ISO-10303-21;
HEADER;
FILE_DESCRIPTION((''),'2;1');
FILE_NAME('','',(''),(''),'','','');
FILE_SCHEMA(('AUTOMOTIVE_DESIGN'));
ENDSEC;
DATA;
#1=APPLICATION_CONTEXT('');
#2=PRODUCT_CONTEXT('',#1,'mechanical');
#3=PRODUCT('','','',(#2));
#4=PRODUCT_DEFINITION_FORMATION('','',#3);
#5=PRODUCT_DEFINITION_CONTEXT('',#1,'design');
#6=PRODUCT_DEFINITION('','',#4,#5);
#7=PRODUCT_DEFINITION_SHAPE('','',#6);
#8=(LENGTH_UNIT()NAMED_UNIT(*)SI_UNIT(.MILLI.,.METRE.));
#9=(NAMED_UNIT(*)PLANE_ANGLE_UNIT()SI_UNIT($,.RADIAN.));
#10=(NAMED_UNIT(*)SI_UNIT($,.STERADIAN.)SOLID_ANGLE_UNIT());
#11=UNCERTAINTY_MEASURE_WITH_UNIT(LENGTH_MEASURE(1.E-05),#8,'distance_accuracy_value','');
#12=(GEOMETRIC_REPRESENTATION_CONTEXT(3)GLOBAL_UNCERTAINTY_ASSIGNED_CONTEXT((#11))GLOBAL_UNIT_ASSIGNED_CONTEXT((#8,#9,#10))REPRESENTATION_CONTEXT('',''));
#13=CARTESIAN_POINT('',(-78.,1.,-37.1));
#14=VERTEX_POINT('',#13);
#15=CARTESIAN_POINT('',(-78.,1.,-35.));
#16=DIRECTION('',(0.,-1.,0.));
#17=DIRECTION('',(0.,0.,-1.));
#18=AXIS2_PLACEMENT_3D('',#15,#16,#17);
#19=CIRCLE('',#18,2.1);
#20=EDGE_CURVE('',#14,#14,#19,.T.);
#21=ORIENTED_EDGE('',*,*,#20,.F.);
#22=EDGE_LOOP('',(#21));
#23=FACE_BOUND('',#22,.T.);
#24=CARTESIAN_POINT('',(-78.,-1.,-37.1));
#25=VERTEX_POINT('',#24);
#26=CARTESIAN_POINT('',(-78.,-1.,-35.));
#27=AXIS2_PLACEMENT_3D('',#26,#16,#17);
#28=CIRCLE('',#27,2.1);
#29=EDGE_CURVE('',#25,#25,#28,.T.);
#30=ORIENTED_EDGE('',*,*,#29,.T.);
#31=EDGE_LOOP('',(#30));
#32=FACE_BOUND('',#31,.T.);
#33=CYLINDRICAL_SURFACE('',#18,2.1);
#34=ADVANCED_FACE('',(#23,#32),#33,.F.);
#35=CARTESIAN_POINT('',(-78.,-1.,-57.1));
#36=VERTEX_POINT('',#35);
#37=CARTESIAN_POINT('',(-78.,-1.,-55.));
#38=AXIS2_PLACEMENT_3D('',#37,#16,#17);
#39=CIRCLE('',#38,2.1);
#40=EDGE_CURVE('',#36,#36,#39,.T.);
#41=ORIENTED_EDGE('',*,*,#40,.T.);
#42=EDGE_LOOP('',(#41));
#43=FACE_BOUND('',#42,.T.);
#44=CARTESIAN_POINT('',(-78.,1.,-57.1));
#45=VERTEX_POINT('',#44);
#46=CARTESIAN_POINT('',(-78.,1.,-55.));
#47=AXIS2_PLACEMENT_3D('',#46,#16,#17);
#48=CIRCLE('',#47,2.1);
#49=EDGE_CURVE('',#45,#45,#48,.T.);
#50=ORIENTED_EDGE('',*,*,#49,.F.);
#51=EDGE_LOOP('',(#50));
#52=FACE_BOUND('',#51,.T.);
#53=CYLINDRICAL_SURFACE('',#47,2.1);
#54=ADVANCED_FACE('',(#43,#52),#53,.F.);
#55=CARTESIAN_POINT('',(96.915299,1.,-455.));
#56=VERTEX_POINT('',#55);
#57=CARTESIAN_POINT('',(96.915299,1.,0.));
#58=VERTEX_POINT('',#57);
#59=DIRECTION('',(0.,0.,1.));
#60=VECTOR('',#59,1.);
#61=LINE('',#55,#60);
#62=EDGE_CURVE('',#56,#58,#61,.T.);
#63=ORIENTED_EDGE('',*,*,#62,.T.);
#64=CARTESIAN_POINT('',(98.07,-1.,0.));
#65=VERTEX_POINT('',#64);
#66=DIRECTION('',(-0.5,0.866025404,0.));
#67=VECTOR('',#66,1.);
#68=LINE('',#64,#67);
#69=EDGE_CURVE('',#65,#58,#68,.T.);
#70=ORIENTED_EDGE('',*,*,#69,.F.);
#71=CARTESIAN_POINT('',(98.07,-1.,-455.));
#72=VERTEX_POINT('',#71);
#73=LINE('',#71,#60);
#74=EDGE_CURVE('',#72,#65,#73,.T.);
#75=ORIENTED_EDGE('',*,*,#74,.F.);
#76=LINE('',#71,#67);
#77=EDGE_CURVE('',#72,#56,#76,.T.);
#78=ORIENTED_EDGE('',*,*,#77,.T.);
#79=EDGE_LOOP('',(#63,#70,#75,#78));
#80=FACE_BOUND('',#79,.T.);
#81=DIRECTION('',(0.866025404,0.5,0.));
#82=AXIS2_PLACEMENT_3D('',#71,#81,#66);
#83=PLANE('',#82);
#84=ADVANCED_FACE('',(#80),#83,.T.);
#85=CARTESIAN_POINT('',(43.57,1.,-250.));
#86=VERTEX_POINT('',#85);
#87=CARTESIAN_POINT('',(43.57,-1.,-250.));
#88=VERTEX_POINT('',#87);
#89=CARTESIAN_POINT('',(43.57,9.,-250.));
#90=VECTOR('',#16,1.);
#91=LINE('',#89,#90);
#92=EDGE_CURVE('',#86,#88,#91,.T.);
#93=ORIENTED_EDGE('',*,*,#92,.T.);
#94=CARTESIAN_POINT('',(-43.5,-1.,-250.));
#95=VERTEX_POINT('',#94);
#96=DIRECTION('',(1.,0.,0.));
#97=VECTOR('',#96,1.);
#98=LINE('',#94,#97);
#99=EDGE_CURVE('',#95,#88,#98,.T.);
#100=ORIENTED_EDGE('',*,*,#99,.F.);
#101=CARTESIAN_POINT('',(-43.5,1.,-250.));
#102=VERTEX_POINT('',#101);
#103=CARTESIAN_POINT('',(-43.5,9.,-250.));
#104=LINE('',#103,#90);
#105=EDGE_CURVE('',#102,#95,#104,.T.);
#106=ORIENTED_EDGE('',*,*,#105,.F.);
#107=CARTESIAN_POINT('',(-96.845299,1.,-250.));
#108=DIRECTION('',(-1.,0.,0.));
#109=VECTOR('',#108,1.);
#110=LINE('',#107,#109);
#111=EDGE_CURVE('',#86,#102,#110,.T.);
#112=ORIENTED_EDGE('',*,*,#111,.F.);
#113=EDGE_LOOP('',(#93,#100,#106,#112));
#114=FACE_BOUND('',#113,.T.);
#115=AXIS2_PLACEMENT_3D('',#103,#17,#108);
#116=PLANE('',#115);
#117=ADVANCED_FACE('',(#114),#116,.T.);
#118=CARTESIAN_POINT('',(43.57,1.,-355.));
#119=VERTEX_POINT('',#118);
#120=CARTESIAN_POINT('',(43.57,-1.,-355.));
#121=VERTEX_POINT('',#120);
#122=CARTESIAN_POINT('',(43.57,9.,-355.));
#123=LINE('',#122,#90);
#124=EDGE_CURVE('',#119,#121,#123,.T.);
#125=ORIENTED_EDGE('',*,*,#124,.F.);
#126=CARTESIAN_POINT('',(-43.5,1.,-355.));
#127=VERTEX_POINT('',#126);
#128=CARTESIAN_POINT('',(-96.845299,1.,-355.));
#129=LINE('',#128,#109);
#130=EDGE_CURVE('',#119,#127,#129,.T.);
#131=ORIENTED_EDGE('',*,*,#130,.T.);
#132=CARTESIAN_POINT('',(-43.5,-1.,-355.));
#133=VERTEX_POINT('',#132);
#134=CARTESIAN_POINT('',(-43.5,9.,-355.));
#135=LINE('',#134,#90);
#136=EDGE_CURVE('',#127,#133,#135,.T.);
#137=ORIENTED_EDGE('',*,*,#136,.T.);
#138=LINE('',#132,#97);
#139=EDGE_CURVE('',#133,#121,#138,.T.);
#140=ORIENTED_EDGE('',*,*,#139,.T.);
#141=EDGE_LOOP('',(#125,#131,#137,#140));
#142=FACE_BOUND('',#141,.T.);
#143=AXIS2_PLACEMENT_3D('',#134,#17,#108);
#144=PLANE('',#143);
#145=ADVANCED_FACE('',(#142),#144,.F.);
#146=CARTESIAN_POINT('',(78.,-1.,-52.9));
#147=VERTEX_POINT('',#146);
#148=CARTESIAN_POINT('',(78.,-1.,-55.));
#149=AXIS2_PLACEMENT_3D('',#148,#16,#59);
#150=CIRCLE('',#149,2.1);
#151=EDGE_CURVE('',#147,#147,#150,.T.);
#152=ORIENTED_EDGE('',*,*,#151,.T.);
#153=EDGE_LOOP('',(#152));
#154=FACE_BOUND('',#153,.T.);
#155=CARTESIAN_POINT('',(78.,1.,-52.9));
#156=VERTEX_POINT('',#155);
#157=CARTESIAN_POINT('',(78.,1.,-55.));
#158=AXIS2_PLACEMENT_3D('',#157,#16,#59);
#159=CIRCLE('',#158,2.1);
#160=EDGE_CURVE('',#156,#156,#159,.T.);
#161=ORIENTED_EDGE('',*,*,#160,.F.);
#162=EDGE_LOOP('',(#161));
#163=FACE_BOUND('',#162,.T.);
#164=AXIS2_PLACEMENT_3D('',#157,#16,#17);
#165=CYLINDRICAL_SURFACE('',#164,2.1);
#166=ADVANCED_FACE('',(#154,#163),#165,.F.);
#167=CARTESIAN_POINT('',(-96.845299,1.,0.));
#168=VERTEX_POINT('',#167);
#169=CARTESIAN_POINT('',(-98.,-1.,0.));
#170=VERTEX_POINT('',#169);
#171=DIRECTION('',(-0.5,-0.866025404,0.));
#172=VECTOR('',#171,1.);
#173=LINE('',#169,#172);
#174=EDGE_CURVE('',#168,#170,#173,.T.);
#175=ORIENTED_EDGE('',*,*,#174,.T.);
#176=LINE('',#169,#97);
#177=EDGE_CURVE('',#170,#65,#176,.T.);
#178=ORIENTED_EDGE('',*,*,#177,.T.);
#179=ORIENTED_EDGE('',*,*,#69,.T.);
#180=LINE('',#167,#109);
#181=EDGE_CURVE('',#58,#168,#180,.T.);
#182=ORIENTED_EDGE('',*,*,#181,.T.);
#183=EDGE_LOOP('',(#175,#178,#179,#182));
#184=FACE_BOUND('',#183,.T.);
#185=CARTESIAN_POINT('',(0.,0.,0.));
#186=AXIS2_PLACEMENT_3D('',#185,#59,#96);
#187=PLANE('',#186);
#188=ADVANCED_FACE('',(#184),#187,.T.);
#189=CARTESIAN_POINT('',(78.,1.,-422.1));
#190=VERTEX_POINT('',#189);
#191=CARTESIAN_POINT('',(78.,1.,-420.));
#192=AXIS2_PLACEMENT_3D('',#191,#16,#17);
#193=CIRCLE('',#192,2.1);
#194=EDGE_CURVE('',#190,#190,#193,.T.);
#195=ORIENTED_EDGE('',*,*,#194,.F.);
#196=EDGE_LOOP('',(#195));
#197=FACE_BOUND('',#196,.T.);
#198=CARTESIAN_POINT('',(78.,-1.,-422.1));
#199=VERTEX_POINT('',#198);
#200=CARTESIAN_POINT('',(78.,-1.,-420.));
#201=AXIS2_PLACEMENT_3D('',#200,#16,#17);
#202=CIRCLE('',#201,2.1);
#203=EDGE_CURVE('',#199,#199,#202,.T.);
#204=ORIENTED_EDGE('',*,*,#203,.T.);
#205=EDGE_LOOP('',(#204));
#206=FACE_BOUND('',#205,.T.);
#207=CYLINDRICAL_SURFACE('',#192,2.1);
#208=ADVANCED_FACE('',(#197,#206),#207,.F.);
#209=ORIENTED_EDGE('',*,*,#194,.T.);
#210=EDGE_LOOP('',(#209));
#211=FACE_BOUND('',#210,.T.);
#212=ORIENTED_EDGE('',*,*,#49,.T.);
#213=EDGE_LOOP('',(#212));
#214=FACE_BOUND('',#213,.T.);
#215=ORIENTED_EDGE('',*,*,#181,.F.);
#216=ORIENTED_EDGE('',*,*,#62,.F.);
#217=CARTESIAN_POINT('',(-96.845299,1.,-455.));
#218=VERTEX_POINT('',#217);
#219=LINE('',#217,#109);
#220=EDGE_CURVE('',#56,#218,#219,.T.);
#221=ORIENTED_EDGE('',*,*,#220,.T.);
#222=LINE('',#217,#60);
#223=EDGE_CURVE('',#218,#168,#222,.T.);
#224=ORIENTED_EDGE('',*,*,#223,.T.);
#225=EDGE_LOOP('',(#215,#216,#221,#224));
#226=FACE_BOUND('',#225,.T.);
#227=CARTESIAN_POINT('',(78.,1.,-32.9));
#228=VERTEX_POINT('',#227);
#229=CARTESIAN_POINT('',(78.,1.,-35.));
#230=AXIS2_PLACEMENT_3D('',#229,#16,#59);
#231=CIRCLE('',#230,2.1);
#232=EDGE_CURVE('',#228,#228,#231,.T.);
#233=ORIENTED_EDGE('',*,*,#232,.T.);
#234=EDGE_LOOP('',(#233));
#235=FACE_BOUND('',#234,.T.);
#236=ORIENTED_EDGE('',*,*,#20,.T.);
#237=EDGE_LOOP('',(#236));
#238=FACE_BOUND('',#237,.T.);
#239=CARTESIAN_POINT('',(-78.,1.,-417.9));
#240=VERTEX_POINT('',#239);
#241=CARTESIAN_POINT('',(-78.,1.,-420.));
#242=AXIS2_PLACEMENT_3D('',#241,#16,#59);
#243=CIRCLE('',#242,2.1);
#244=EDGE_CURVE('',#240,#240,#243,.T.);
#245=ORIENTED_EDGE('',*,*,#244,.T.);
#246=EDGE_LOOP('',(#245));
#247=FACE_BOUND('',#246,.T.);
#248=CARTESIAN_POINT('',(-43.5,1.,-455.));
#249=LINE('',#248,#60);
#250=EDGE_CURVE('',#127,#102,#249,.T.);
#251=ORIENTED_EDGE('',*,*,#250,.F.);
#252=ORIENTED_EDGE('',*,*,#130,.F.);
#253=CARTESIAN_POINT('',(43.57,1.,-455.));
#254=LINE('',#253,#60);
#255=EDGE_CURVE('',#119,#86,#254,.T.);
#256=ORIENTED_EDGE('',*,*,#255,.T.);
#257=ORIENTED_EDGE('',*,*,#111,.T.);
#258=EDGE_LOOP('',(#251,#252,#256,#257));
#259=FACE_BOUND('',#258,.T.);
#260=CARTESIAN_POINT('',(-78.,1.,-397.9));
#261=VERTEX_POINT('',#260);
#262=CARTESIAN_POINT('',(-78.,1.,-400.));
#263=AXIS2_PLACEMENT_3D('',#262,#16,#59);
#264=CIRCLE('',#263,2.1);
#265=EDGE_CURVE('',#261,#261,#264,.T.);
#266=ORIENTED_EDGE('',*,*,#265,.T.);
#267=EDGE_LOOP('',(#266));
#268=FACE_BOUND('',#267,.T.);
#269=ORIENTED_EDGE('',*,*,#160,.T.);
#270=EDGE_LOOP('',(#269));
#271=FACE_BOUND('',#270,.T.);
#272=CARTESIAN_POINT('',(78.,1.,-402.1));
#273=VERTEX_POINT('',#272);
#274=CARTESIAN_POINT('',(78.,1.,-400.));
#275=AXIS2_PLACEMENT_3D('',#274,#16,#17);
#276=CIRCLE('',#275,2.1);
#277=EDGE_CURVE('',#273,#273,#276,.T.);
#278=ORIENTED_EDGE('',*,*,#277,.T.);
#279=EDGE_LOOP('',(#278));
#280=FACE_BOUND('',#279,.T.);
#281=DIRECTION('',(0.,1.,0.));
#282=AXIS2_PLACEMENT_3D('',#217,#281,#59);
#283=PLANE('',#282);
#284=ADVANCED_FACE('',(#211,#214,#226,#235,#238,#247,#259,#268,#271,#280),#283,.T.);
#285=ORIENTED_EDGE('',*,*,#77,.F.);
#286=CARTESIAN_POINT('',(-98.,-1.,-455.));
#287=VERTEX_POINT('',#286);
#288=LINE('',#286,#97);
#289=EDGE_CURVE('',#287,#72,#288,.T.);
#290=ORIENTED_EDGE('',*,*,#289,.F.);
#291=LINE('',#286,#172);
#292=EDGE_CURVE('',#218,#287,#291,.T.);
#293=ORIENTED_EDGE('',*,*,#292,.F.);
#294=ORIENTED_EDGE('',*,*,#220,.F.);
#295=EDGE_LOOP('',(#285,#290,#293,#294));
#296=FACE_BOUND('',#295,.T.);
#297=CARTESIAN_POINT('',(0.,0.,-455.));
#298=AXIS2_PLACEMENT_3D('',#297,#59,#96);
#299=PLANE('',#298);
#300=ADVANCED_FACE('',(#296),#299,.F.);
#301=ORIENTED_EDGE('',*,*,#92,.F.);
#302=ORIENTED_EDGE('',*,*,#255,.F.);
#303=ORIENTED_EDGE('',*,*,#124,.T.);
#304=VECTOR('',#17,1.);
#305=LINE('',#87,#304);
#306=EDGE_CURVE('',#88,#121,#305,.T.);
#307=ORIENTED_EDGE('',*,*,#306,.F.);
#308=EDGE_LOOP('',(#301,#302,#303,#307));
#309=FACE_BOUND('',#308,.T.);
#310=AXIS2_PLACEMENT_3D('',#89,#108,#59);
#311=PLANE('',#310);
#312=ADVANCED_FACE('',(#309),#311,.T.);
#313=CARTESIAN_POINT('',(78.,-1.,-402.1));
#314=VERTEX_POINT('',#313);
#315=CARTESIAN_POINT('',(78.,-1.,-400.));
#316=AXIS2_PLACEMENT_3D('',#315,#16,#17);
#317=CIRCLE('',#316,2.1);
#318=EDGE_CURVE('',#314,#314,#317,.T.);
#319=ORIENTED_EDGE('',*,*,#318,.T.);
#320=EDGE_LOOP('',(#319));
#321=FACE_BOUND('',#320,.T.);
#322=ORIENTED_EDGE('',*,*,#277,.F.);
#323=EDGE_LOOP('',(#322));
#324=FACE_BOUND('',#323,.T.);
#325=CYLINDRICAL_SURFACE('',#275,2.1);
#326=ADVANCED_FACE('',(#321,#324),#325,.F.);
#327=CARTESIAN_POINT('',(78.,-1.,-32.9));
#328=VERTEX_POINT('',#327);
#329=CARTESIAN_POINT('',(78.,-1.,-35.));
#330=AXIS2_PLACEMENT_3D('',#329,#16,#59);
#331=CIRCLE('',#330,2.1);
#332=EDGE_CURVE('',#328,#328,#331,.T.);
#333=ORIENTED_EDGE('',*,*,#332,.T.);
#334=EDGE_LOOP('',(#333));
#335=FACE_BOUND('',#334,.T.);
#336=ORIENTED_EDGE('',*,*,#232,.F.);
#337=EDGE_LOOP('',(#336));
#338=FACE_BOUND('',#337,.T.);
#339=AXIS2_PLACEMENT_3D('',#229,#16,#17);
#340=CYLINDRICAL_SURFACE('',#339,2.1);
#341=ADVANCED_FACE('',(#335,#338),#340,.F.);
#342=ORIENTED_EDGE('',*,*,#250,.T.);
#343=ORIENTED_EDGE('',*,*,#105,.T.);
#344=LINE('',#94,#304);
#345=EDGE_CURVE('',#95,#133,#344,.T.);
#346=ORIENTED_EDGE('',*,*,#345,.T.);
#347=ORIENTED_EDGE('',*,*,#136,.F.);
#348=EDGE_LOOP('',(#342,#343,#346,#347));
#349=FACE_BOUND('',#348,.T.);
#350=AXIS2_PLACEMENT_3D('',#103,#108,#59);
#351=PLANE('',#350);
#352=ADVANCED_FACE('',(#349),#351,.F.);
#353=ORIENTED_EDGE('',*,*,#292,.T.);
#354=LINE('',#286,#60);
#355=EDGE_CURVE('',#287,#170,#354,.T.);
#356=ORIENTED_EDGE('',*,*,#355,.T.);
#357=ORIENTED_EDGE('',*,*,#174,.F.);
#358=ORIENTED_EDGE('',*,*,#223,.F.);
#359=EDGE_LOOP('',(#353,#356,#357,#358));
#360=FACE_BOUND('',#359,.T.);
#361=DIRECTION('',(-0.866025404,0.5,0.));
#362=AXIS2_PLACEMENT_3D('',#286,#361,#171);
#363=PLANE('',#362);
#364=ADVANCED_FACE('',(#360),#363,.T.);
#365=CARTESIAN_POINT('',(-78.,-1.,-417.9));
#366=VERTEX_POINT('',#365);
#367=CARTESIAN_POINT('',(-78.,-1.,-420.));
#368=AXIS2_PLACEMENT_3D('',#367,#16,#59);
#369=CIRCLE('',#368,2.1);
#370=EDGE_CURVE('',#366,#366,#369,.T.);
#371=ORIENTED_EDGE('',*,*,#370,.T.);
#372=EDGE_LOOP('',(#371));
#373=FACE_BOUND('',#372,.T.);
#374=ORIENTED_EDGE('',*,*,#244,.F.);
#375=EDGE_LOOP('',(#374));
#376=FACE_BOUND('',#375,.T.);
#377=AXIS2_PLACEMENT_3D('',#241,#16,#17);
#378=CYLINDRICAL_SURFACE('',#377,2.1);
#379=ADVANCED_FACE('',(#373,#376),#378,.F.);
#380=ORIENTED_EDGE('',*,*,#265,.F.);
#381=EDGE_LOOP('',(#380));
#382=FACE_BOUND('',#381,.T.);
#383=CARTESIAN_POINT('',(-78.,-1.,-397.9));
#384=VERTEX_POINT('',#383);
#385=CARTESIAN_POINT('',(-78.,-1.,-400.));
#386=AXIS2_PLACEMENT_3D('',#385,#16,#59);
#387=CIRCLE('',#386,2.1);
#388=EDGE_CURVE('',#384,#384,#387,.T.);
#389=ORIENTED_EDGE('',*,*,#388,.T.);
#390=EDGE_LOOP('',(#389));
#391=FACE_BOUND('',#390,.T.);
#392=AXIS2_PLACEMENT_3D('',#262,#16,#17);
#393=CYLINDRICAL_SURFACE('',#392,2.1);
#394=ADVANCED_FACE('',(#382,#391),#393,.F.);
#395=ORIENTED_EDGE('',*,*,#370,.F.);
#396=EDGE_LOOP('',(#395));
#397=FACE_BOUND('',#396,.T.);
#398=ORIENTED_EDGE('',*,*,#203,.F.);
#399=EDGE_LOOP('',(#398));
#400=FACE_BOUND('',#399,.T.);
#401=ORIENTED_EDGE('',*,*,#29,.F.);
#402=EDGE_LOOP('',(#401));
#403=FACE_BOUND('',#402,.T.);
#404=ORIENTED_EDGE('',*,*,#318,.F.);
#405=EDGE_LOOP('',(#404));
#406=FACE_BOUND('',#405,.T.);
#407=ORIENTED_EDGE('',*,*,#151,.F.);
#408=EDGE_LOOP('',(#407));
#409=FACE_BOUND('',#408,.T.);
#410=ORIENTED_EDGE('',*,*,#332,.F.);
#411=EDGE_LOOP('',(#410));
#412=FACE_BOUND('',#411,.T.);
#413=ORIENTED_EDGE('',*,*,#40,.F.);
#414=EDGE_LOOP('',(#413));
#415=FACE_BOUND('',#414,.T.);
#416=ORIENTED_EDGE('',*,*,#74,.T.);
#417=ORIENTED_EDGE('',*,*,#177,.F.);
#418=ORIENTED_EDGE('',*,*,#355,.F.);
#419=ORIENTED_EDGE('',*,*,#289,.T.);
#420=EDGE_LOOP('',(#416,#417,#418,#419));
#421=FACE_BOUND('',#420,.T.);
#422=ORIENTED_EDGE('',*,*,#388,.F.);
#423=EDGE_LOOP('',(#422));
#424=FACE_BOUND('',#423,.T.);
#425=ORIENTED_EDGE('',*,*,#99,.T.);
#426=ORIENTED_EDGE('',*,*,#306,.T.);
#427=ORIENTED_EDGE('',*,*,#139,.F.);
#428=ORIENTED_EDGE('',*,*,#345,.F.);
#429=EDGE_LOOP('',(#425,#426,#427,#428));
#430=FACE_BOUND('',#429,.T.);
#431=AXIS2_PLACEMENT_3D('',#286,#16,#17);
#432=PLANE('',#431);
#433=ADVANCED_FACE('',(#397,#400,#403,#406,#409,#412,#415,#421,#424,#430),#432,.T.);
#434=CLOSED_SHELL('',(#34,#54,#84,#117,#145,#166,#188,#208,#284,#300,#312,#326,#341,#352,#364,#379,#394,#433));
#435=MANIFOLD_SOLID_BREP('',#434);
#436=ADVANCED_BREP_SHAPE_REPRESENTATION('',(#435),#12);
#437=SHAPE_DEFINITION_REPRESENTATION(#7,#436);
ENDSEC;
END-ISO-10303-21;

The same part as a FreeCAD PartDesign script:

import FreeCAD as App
import Part
import Sketcher
from FreeCAD import Vector
Q = App.Units.Quantity

doc = App.newDocument("Part")
body = doc.addObject("PartDesign::Body", "Body")

# Sketch on XY plane
sketch1 = doc.addObject("Sketcher::SketchObject", "Sketch")
body.addObject(sketch1)
sketch1.AttachmentSupport = (doc.XY_Plane, [""])
sketch1.MapMode = "FlatFace"
sketch1.addGeometry(Part.LineSegment(Vector(-96.845299, 1, 0), Vector(-98, -1, 0)), False)
sketch1.addGeometry(Part.LineSegment(Vector(-98, -1, 0), Vector(98.07, -1, 0)), False)
sketch1.addGeometry(Part.LineSegment(Vector(98.07, -1, 0), Vector(96.915299, 1, 0)), False)
sketch1.addGeometry(Part.LineSegment(Vector(96.915299, 1, 0), Vector(-96.845299, 1, 0)), False)
sketch1.addConstraint(Sketcher.Constraint("Coincident", 0, 2, 1, 1))
sketch1.addConstraint(Sketcher.Constraint("Coincident", 1, 2, 2, 1))
sketch1.addConstraint(Sketcher.Constraint("Coincident", 2, 2, 3, 1))
sketch1.addConstraint(Sketcher.Constraint("Coincident", 3, 2, 0, 1))
sketch1.addConstraint(Sketcher.Constraint("Horizontal", 1))
sketch1.addConstraint(Sketcher.Constraint("Horizontal", 3))
sketch1.addConstraint(Sketcher.Constraint("Equal", 0, 2))
sketch1.addConstraint(Sketcher.Constraint("Angle", 0, Q("-120 deg")))
sketch1.addConstraint(Sketcher.Constraint("DistanceX", 0, 2, -1, 1, 98.0))
sketch1.addConstraint(Sketcher.Constraint("DistanceY", 0, 2, -1, 1, 1.0))
sketch1.addConstraint(Sketcher.Constraint("DistanceY", -1, 1, 2, 2, 1.0))
sketch1.addConstraint(Sketcher.Constraint("DistanceX", 1, 1, 1, 2, 196.07))
pad1 = doc.addObject("PartDesign::Pad", "Pad")
body.addObject(pad1)
pad1.Profile = sketch1
pad1.Length = 455
pad1.Reversed = True

# Sketch on XZ plane
sketch2 = doc.addObject("Sketcher::SketchObject", "Sketch001")
body.addObject(sketch2)
sketch2.AttachmentSupport = (doc.XZ_Plane, [""])
sketch2.MapMode = "FlatFace"
sketch2.AttachmentOffset = App.Placement(Vector(0, 0, 1), App.Rotation())
sketch2.addGeometry(Part.Circle(Vector(-78, -35, 0), Vector(0, 0, 1), 2.1), False)
sketch2.addGeometry(Part.Circle(Vector(-78, -55, 0), Vector(0, 0, 1), 2.1), False)
sketch2.addGeometry(Part.Circle(Vector(78, -55, 0), Vector(0, 0, 1), 2.1), False)
sketch2.addGeometry(Part.Circle(Vector(78, -35, 0), Vector(0, 0, 1), 2.1), False)
sketch2.addGeometry(Part.Circle(Vector(78, -420, 0), Vector(0, 0, 1), 2.1), False)
sketch2.addGeometry(Part.Circle(Vector(78, -400, 0), Vector(0, 0, 1), 2.1), False)
sketch2.addGeometry(Part.Circle(Vector(-78, -400, 0), Vector(0, 0, 1), 2.1), False)
sketch2.addGeometry(Part.Circle(Vector(-78, -420, 0), Vector(0, 0, 1), 2.1), False)
sketch2.addConstraint(Sketcher.Constraint("Equal", 0, 1))
sketch2.addConstraint(Sketcher.Constraint("Equal", 1, 2))
sketch2.addConstraint(Sketcher.Constraint("Equal", 2, 3))
sketch2.addConstraint(Sketcher.Constraint("Equal", 3, 4))
sketch2.addConstraint(Sketcher.Constraint("Equal", 4, 5))
sketch2.addConstraint(Sketcher.Constraint("Equal", 5, 6))
sketch2.addConstraint(Sketcher.Constraint("Equal", 6, 7))
sketch2.addConstraint(Sketcher.Constraint("Symmetric", 1, 3, 2, 3, -2))
sketch2.addConstraint(Sketcher.Constraint("Symmetric", 0, 3, 3, 3, -2))
sketch2.addConstraint(Sketcher.Constraint("Symmetric", 5, 3, 6, 3, -2))
sketch2.addConstraint(Sketcher.Constraint("Symmetric", 4, 3, 7, 3, -2))
sketch2.addConstraint(Sketcher.Constraint("Vertical", 0, 3, 1, 3))
sketch2.addConstraint(Sketcher.Constraint("Vertical", 3, 3, 4, 3))
sketch2.addConstraint(Sketcher.Constraint("Vertical", 4, 3, 5, 3))
sketch2.addConstraint(Sketcher.Constraint("Diameter", 0, 4.2))
sketch2.addConstraint(Sketcher.Constraint("DistanceX", 0, 3, -1, 1, 78.0))
sketch2.addConstraint(Sketcher.Constraint("DistanceY", 0, 3, -1, 1, 35.0))
sketch2.addConstraint(Sketcher.Constraint("DistanceY", 1, 3, -1, 1, 55.0))
sketch2.addConstraint(Sketcher.Constraint("DistanceY", 4, 3, -1, 1, 420.0))
sketch2.addConstraint(Sketcher.Constraint("DistanceY", 5, 3, -1, 1, 400.0))
pocket1 = doc.addObject("PartDesign::Pocket", "Pocket")
body.addObject(pocket1)
pocket1.Profile = sketch2
pocket1.Type = "ThroughAll"

# Sketch on XZ plane
sketch3 = doc.addObject("Sketcher::SketchObject", "Sketch002")
body.addObject(sketch3)
sketch3.AttachmentSupport = (doc.XZ_Plane, [""])
sketch3.MapMode = "FlatFace"
sketch3.AttachmentOffset = App.Placement(Vector(0, 0, 1), App.Rotation())
sketch3.addGeometry(Part.LineSegment(Vector(-43.5, -250, 0), Vector(-43.5, -355, 0)), False)
sketch3.addGeometry(Part.LineSegment(Vector(-43.5, -355, 0), Vector(43.57, -355, 0)), False)
sketch3.addGeometry(Part.LineSegment(Vector(43.57, -355, 0), Vector(43.57, -250, 0)), False)
sketch3.addGeometry(Part.LineSegment(Vector(43.57, -250, 0), Vector(-43.5, -250, 0)), False)
sketch3.addConstraint(Sketcher.Constraint("Coincident", 0, 2, 1, 1))
sketch3.addConstraint(Sketcher.Constraint("Coincident", 1, 2, 2, 1))
sketch3.addConstraint(Sketcher.Constraint("Coincident", 2, 2, 3, 1))
sketch3.addConstraint(Sketcher.Constraint("Coincident", 3, 2, 0, 1))
sketch3.addConstraint(Sketcher.Constraint("Vertical", 0))
sketch3.addConstraint(Sketcher.Constraint("Horizontal", 1))
sketch3.addConstraint(Sketcher.Constraint("Vertical", 2))
sketch3.addConstraint(Sketcher.Constraint("Horizontal", 3))
sketch3.addConstraint(Sketcher.Constraint("DistanceY", 0, 2, 0, 1, 105.0))
sketch3.addConstraint(Sketcher.Constraint("DistanceY", 0, 2, -1, 1, 355.0))
sketch3.addConstraint(Sketcher.Constraint("DistanceX", 1, 1, 1, 2, 87.07))
sketch3.addConstraint(Sketcher.Constraint("DistanceX", 0, 2, -1, 1, 43.5))
pocket2 = doc.addObject("PartDesign::Pocket", "Pocket001")
body.addObject(pocket2)
pocket2.Profile = sketch3
pocket2.Length = 10

doc.recompute()
